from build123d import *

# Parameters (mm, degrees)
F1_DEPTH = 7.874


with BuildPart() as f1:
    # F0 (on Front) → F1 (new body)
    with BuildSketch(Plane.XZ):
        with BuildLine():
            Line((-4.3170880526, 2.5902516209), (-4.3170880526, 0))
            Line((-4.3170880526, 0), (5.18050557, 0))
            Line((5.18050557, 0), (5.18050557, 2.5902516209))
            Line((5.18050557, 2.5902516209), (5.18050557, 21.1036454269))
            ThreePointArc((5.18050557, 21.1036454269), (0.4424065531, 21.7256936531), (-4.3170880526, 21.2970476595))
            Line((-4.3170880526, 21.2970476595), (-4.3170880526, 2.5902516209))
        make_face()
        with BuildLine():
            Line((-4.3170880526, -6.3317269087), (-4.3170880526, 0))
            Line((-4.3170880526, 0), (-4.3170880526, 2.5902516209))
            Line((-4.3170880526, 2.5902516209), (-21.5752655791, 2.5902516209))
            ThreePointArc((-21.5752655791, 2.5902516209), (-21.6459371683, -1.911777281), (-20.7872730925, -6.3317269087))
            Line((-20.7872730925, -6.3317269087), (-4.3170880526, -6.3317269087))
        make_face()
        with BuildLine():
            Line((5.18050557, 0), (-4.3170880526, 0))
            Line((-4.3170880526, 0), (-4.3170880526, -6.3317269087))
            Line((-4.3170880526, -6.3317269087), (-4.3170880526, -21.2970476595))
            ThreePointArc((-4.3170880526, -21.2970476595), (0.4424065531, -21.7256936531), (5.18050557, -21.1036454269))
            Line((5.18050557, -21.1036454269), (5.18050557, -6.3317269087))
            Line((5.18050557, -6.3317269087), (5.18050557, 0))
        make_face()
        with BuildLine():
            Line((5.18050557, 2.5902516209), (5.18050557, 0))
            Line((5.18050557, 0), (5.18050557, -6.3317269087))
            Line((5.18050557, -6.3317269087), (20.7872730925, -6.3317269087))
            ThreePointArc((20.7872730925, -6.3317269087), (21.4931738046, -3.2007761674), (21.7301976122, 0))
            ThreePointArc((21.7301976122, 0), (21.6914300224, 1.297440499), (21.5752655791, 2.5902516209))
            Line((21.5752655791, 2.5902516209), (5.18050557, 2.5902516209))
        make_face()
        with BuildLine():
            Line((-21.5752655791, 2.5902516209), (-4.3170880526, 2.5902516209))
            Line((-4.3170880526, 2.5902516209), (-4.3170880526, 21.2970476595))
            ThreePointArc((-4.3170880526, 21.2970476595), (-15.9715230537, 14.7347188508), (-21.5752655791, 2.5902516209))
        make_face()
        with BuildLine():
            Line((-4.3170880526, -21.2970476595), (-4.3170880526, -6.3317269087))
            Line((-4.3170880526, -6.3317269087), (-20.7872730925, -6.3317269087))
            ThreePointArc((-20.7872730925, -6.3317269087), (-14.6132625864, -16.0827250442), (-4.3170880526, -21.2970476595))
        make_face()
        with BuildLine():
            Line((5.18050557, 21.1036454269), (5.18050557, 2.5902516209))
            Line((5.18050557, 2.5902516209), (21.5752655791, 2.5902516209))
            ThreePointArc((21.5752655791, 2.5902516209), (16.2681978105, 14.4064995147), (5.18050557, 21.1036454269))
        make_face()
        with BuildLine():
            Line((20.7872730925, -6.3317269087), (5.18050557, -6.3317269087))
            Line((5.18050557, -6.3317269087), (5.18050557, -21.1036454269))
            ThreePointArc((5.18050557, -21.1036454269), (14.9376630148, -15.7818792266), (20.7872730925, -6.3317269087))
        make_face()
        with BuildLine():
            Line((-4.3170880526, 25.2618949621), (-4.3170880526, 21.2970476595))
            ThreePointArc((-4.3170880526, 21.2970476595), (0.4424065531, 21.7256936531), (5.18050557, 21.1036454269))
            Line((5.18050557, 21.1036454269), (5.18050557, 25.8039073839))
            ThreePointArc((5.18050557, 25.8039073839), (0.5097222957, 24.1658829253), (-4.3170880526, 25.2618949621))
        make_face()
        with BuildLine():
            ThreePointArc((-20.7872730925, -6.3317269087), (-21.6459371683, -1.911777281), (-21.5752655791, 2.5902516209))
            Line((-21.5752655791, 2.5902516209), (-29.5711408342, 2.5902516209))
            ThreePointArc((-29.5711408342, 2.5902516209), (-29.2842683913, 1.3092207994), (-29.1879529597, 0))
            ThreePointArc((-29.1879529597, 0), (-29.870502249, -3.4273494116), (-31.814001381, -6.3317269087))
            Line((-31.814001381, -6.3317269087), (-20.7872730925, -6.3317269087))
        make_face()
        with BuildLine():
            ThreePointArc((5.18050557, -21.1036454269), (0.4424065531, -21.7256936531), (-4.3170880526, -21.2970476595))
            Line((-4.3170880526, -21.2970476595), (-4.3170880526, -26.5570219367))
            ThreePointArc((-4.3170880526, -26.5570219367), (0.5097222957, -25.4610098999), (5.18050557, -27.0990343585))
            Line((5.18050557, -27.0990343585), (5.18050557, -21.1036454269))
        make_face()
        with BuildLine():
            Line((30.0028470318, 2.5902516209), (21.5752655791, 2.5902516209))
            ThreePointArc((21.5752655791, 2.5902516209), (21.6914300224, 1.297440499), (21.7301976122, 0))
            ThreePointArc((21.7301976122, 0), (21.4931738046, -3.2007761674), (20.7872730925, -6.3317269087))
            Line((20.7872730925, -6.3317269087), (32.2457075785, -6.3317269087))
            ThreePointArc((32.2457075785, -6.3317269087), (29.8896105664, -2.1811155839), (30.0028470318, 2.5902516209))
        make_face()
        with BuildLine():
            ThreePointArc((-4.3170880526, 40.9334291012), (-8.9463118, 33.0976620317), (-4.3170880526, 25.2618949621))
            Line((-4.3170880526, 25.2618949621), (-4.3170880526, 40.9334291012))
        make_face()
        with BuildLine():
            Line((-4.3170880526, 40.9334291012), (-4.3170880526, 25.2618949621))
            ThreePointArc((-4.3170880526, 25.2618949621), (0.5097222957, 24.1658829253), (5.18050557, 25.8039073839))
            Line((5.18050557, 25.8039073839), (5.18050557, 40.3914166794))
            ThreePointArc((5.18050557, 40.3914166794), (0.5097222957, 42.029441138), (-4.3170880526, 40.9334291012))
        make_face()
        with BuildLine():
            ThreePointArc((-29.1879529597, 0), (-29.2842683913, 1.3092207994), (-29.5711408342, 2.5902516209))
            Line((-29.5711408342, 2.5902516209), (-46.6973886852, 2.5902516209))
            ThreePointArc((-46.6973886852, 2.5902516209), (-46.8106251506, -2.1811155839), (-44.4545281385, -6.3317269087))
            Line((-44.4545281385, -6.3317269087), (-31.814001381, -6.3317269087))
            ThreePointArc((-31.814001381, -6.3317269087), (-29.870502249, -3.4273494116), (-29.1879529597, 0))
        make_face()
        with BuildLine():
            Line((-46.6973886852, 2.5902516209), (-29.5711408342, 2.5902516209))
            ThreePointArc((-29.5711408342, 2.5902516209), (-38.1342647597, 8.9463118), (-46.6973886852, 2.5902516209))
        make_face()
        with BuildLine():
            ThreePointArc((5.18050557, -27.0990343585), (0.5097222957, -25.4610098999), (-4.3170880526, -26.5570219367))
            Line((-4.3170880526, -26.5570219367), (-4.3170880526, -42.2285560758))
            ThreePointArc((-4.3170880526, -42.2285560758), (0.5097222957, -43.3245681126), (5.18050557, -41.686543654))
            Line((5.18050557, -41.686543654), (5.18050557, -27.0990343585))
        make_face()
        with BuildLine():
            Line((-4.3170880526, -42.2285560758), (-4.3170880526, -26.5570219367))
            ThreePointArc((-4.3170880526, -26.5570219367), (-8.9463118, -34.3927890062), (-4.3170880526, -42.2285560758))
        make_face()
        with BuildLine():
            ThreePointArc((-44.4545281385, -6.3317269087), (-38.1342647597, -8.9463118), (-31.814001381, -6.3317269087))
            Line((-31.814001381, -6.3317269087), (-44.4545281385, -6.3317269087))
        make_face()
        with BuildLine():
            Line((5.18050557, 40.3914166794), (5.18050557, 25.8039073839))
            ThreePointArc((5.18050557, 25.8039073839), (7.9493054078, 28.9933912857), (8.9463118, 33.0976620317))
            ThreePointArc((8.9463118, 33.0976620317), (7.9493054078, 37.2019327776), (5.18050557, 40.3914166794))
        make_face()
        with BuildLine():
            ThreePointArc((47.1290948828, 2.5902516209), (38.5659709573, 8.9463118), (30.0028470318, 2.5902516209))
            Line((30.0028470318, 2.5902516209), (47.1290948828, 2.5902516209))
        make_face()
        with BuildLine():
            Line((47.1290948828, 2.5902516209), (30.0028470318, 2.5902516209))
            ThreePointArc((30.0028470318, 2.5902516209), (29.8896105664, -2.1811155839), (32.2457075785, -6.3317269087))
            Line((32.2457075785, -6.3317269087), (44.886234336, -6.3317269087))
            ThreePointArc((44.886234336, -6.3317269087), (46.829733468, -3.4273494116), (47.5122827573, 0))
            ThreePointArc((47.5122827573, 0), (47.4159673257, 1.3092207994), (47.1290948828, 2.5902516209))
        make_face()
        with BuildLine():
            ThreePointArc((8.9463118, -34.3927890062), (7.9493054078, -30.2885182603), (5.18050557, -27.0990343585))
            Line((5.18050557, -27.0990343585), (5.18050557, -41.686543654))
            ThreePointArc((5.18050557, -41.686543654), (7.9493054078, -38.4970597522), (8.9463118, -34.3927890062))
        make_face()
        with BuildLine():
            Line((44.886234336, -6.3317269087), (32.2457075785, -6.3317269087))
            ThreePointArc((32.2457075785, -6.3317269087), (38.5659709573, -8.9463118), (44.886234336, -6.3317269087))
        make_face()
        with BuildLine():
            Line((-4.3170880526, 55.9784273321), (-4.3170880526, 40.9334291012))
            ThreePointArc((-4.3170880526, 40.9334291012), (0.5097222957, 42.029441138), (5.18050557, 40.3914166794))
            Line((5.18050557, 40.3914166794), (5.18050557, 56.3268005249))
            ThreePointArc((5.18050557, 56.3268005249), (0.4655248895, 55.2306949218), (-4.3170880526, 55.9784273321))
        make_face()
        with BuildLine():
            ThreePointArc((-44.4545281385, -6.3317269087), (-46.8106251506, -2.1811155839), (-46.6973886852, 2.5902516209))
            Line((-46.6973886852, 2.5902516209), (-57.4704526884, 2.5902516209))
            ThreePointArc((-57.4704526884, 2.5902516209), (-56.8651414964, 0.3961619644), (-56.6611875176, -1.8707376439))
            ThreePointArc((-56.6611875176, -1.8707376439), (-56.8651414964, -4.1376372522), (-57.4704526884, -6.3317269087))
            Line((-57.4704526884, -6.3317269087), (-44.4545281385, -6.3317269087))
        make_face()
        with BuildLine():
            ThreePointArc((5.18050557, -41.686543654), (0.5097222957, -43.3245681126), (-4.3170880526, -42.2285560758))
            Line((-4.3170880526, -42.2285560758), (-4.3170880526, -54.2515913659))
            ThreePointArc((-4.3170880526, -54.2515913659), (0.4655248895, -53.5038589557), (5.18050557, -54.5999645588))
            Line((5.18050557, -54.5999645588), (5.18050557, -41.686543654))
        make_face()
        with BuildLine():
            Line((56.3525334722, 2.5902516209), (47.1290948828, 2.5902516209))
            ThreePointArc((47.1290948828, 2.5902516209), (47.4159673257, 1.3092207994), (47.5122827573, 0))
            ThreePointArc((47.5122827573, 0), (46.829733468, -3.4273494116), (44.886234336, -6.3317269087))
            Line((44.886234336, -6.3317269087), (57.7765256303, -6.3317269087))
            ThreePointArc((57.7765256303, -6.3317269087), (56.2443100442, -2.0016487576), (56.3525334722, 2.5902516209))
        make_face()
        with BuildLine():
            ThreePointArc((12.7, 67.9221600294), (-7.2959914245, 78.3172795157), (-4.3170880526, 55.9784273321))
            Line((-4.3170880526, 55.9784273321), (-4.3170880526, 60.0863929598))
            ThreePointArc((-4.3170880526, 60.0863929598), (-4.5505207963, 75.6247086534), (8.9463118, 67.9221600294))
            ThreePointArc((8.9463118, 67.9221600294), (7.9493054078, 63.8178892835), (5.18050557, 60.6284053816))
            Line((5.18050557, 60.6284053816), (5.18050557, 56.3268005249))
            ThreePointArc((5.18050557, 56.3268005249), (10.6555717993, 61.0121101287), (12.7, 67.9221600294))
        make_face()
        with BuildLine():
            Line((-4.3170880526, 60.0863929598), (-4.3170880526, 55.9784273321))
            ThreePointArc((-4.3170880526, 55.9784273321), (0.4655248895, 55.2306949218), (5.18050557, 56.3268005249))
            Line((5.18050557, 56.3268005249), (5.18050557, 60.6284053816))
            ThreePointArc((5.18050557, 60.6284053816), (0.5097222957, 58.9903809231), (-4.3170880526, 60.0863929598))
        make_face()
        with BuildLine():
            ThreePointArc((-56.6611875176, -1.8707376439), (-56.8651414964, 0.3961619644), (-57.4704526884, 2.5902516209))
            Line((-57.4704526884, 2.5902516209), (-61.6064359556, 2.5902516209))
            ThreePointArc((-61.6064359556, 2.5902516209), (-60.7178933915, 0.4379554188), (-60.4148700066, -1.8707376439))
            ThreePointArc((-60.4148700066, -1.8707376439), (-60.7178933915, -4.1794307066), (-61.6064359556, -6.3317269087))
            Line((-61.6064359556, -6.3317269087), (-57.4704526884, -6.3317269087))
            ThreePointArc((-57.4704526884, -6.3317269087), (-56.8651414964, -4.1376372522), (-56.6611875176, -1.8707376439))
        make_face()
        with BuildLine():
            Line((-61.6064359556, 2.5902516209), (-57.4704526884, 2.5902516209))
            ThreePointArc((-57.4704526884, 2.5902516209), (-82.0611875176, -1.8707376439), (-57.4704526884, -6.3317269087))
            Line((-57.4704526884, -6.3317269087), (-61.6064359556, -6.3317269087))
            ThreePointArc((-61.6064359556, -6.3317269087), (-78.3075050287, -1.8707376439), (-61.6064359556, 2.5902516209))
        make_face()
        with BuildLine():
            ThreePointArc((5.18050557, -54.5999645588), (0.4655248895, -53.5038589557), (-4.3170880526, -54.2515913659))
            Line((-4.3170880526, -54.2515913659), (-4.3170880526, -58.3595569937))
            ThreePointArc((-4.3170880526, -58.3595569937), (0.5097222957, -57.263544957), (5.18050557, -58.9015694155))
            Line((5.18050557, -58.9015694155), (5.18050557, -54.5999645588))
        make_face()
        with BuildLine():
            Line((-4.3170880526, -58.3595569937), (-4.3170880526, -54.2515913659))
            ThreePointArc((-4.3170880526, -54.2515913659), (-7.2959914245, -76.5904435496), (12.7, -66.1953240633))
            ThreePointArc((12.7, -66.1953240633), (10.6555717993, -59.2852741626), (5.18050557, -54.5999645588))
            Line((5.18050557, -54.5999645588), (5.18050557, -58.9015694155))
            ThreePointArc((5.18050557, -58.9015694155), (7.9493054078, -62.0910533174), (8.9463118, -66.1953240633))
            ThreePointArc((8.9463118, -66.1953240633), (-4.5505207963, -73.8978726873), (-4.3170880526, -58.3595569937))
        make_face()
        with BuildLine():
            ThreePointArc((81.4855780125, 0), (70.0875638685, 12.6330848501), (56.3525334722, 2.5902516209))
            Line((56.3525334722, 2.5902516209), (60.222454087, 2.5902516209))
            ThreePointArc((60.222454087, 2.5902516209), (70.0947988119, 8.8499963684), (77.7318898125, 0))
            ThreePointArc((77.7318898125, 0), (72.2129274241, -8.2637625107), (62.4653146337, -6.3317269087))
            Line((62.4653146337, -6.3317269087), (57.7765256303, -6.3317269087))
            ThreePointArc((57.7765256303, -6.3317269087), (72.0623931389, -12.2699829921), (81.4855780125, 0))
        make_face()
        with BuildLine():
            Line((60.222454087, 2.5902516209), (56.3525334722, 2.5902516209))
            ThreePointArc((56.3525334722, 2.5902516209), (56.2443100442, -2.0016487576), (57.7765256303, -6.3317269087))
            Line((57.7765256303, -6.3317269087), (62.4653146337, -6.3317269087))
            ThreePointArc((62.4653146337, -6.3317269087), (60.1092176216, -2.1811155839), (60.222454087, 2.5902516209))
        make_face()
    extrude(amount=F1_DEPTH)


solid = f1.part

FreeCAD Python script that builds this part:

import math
import FreeCAD as App
import Part
import Sketcher

V = App.Vector
Q = App.Units.Quantity

doc = App.newDocument("Part")
body = doc.addObject("PartDesign::Body", "Body")

sketch1 = body.newObject("Sketcher::SketchObject", "Sketch")
sketch1.AttachmentSupport = (doc.getObject("XZ_Plane"), [""])
sketch1.MapMode = "FlatFace"
sketch1.addGeometry([
    Part.ArcOfCircle(Part.Circle(V(0, 0, 0), V(0, 0, 1), 21.7), math.radians(101), math.radians(173)),
    Part.LineSegment(V(-21.6, 2.6, 0), V(-29.6, 2.6, 0)),
    Part.ArcOfCircle(Part.Circle(V(-38.1, 0, 0), V(0, 0, 1), 8.9), math.radians(17), math.radians(163)),
    Part.LineSegment(V(-46.7, 2.6, 0), V(-57.5, 2.6, 0)),
    Part.ArcOfCircle(Part.Circle(V(-69.4, -1.9, 0), V(0, 0, 1), 12.7), math.radians(21), math.radians(339)),
    Part.LineSegment(V(-57.5, -6.3, 0), V(-44.5, -6.3, 0)),
    Part.ArcOfCircle(Part.Circle(V(-38.1, 0, 0), V(0, 0, 1), 8.9), math.radians(-135), math.radians(-45)),
    Part.LineSegment(V(-31.8, -6.3, 0), V(-20.8, -6.3, 0)),
    Part.ArcOfCircle(Part.Circle(V(0, 0, 0), V(0, 0, 1), 21.7), math.radians(-163), math.radians(-101)),
    Part.LineSegment(V(-4.3, -21.3, 0), V(-4.3, -26.6, 0)),
    Part.ArcOfCircle(Part.Circle(V(0, -34.4, 0), V(0, 0, 1), 8.9), math.radians(119), math.radians(241)),
    Part.LineSegment(V(-4.3, -42.2, 0), V(-4.3, -54.3, 0)),
    Part.ArcOfCircle(Part.Circle(V(0, -66.2, 0), V(0, 0, 1), 12.7), math.radians(110), math.radians(360)),
    Part.ArcOfCircle(Part.Circle(V(0, -66.2, 0), V(0, 0, 1), 12.7), math.radians(0), math.radians(66)),
    Part.LineSegment(V(5.2, -54.6, 0), V(5.2, -41.7, 0)),
    Part.ArcOfCircle(Part.Circle(V(0, -34.4, 0), V(0, 0, 1), 8.9), math.radians(-55), math.radians(0)),
    Part.ArcOfCircle(Part.Circle(V(0, -34.4, 0), V(0, 0, 1), 8.9), math.radians(0), math.radians(55)),
    Part.LineSegment(V(5.2, -27.1, 0), V(5.2, -21.1, 0)),
    Part.ArcOfCircle(Part.Circle(V(0, 0, 0), V(0, 0, 1), 21.7), math.radians(-76), math.radians(-17)),
    Part.LineSegment(V(20.8, -6.3, 0), V(32.2, -6.3, 0)),
    Part.ArcOfCircle(Part.Circle(V(38.6, 0, 0), V(0, 0, 1), 8.9), math.radians(-135), math.radians(-45)),
    Part.LineSegment(V(44.9, -6.3, 0), V(57.8, -6.3, 0)),
    Part.ArcOfCircle(Part.Circle(V(68.8, 0, 0), V(0, 0, 1), 12.7), math.radians(-150), math.radians(0)),
    Part.ArcOfCircle(Part.Circle(V(68.8, 0, 0), V(0, 0, 1), 12.7), math.radians(0), math.radians(168)),
    Part.LineSegment(V(56.4, 2.6, 0), V(47.1, 2.6, 0)),
    Part.ArcOfCircle(Part.Circle(V(38.6, 0, 0), V(0, 0, 1), 8.9), math.radians(17), math.radians(163)),
    Part.LineSegment(V(30, 2.6, 0), V(21.6, 2.6, 0)),
    Part.ArcOfCircle(Part.Circle(V(0, 0, 0), V(0, 0, 1), 21.7), math.radians(7), math.radians(76)),
    Part.LineSegment(V(5.2, 21.1, 0), V(5.2, 25.8, 0)),
    Part.ArcOfCircle(Part.Circle(V(0, 33.1, 0), V(0, 0, 1), 8.9), math.radians(-55), math.radians(0)),
    Part.ArcOfCircle(Part.Circle(V(0, 33.1, 0), V(0, 0, 1), 8.9), math.radians(0), math.radians(55)),
    Part.LineSegment(V(5.2, 40.4, 0), V(5.2, 56.3, 0)),
    Part.ArcOfCircle(Part.Circle(V(0, 67.9, 0), V(0, 0, 1), 12.7), math.radians(-66), math.radians(0)),
    Part.ArcOfCircle(Part.Circle(V(0, 67.9, 0), V(0, 0, 1), 12.7), math.radians(0), math.radians(250)),
    Part.LineSegment(V(-4.3, 56, 0), V(-4.3, 40.9, 0)),
    Part.ArcOfCircle(Part.Circle(V(0, 33.1, 0), V(0, 0, 1), 8.9), math.radians(119), math.radians(241)),
    Part.LineSegment(V(-4.3, 25.3, 0), V(-4.3, 21.3, 0)),
    Part.ArcOfCircle(Part.Circle(V(0, -66.2, 0), V(0, 0, 1), 8.9), math.radians(55), math.radians(119)),
    Part.ArcOfCircle(Part.Circle(V(0, -66.2, 0), V(0, 0, 1), 8.9), math.radians(0), math.radians(55)),
    Part.ArcOfCircle(Part.Circle(V(0, -66.2, 0), V(0, 0, 1), 8.9), math.radians(119), math.radians(360)),
    Part.ArcOfCircle(Part.Circle(V(-69.4, -1.9, 0), V(0, 0, 1), 8.9), math.radians(0), math.radians(30)),
    Part.ArcOfCircle(Part.Circle(V(-69.4, -1.9, 0), V(0, 0, 1), 8.9), math.radians(-30), math.radians(0)),
    Part.ArcOfCircle(Part.Circle(V(-69.4, -1.9, 0), V(0, 0, 1), 8.9), math.radians(30), math.radians(330)),
    Part.ArcOfCircle(Part.Circle(V(0, 67.9, 0), V(0, 0, 1), 8.9), math.radians(-119), math.radians(-55)),
    Part.ArcOfCircle(Part.Circle(V(0, 67.9, 0), V(0, 0, 1), 8.9), math.radians(0), math.radians(241)),
    Part.ArcOfCircle(Part.Circle(V(0, 67.9, 0), V(0, 0, 1), 8.9), math.radians(-55), math.radians(0)),
    Part.ArcOfCircle(Part.Circle(V(68.8, 0, 0), V(0, 0, 1), 8.9), math.radians(163), math.radians(225)),
    Part.ArcOfCircle(Part.Circle(V(68.8, 0, 0), V(0, 0, 1), 8.9), math.radians(0), math.radians(163)),
    Part.ArcOfCircle(Part.Circle(V(68.8, 0, 0), V(0, 0, 1), 8.9), math.radians(-135), math.radians(0)),
], False)
sketch1.addConstraint([
    Sketcher.Constraint("Coincident", 0, 2, 1, 1),
    Sketcher.Constraint("Coincident", 1, 2, 2, 1),
    Sketcher.Constraint("Coincident", 2, 2, 3, 1),
    Sketcher.Constraint("Coincident", 3, 2, 4, 1),
    Sketcher.Constraint("Coincident", 4, 2, 5, 1),
    Sketcher.Constraint("Coincident", 5, 2, 6, 1),
    Sketcher.Constraint("Coincident", 6, 2, 7, 1),
    Sketcher.Constraint("Coincident", 7, 2, 8, 1),
    Sketcher.Constraint("Coincident", 8, 2, 9, 1),
    Sketcher.Constraint("Coincident", 9, 2, 10, 1),
    Sketcher.Constraint("Coincident", 10, 2, 11, 1),
    Sketcher.Constraint("Coincident", 11, 2, 12, 1),
    Sketcher.Constraint("Tangent", 12, 2, 13, 1),
    Sketcher.Constraint("Coincident", 13, 2, 14, 1),
    Sketcher.Constraint("Coincident", 14, 2, 15, 1),
    Sketcher.Constraint("Tangent", 15, 2, 16, 1),
    Sketcher.Constraint("Coincident", 16, 2, 17, 1),
    Sketcher.Constraint("Coincident", 17, 2, 18, 1),
    Sketcher.Constraint("Coincident", 18, 2, 19, 1),
    Sketcher.Constraint("Coincident", 19, 2, 20, 1),
    Sketcher.Constraint("Coincident", 20, 2, 21, 1),
    Sketcher.Constraint("Coincident", 21, 2, 22, 1),
    Sketcher.Constraint("Tangent", 22, 2, 23, 1),
    Sketcher.Constraint("Coincident", 23, 2, 24, 1),
    Sketcher.Constraint("Coincident", 24, 2, 25, 1),
    Sketcher.Constraint("Coincident", 25, 2, 26, 1),
    Sketcher.Constraint("Coincident", 26, 2, 27, 1),
    Sketcher.Constraint("Coincident", 27, 2, 28, 1),
    Sketcher.Constraint("Coincident", 28, 2, 29, 1),
    Sketcher.Constraint("Tangent", 29, 2, 30, 1),
    Sketcher.Constraint("Coincident", 30, 2, 31, 1),
    Sketcher.Constraint("Coincident", 31, 2, 32, 1),
    Sketcher.Constraint("Tangent", 32, 2, 33, 1),
    Sketcher.Constraint("Coincident", 33, 2, 34, 1),
    Sketcher.Constraint("Coincident", 34, 2, 35, 1),
    Sketcher.Constraint("Coincident", 35, 2, 36, 1),
    Sketcher.Constraint("Coincident", 36, 2, 0, 1),
    Sketcher.Constraint("Tangent", 37, 1, 38, 2),
    Sketcher.Constraint("Tangent", 38, 1, 39, 2),
    Sketcher.Constraint("Tangent", 39, 1, 37, 2),
    Sketcher.Constraint("Tangent", 40, 1, 41, 2),
    Sketcher.Constraint("Tangent", 41, 1, 42, 2),
    Sketcher.Constraint("Tangent", 42, 1, 40, 2),
    Sketcher.Constraint("Tangent", 43, 1, 44, 2),
    Sketcher.Constraint("Tangent", 44, 1, 45, 2),
    Sketcher.Constraint("Tangent", 45, 1, 43, 2),
    Sketcher.Constraint("Tangent", 46, 1, 47, 2),
    Sketcher.Constraint("Tangent", 47, 1, 48, 2),
    Sketcher.Constraint("Tangent", 48, 1, 46, 2),
    Sketcher.Constraint("Horizontal", 1),
    Sketcher.Constraint("Horizontal", 3),
    Sketcher.Constraint("Horizontal", 5),
    Sketcher.Constraint("Horizontal", 7),
    Sketcher.Constraint("Vertical", 9),
    Sketcher.Constraint("Vertical", 11),
    Sketcher.Constraint("Vertical", 14),
    Sketcher.Constraint("Vertical", 17),
    Sketcher.Constraint("Horizontal", 19),
    Sketcher.Constraint("Horizontal", 21),
    Sketcher.Constraint("Horizontal", 24),
    Sketcher.Constraint("Horizontal", 26),
    Sketcher.Constraint("Vertical", 28),
    Sketcher.Constraint("Vertical", 31),
    Sketcher.Constraint("Vertical", 34),
    Sketcher.Constraint("Vertical", 36),
    Sketcher.Constraint("Coincident", 0, 3, -1, 1),
    Sketcher.Constraint("Coincident", 8, 3, -1, 1),
    Sketcher.Constraint("Coincident", 18, 3, -1, 1),
    Sketcher.Constraint("Coincident", 27, 3, -1, 1),
    Sketcher.Constraint("Coincident", 6, 3, 2, 3),
    Sketcher.Constraint("Coincident", 15, 3, 10, 3),
    Sketcher.Constraint("Coincident", 25, 3, 20, 3),
    Sketcher.Constraint("Coincident", 35, 3, 29, 3),
    Sketcher.Constraint("Coincident", 37, 3, 12, 3),
    Sketcher.Constraint("Coincident", 40, 3, 4, 3),
    Sketcher.Constraint("Coincident", 43, 3, 32, 3),
    Sketcher.Constraint("Coincident", 46, 3, 22, 3),
    Sketcher.Constraint("Equal", 2, 6),
    Sketcher.Constraint("Equal", 0, 8),
    Sketcher.Constraint("Equal", 6, 10),
    Sketcher.Constraint("Equal", 4, 12),
    Sketcher.Constraint("Equal", 12, 13),
    Sketcher.Constraint("Equal", 10, 15),
    Sketcher.Constraint("Equal", 15, 16),
    Sketcher.Constraint("Equal", 8, 18),
    Sketcher.Constraint("Equal", 16, 20),
    Sketcher.Constraint("Equal", 13, 22),
    Sketcher.Constraint("Equal", 22, 23),
    Sketcher.Constraint("Equal", 20, 25),
    Sketcher.Constraint("Equal", 18, 27),
    Sketcher.Constraint("Equal", 25, 29),
    Sketcher.Constraint("Equal", 29, 30),
    Sketcher.Constraint("Equal", 23, 32),
    Sketcher.Constraint("Equal", 32, 33),
    Sketcher.Constraint("Equal", 30, 35),
    Sketcher.Constraint("Equal", 35, 37),
    Sketcher.Constraint("Equal", 39, 43),
    Sketcher.Constraint("Equal", 45, 46),
    Sketcher.Constraint("PointOnObject", 2, 3, -1),
    Sketcher.Constraint("PointOnObject", 10, 3, -2),
    Sketcher.Constraint("PointOnObject", 12, 3, -2),
    Sketcher.Constraint("PointOnObject", 20, 3, -1),
    Sketcher.Constraint("PointOnObject", 22, 3, -1),
    Sketcher.Constraint("PointOnObject", 29, 3, -2),
    Sketcher.Constraint("PointOnObject", 32, 3, -2),
    Sketcher.Constraint("PointOnObject", 22, 2, -1),
    Sketcher.Constraint("PointOnObject", 47, 1, -1),
    Sketcher.Constraint("Horizontal", 1, 2, 2, 2),
    Sketcher.Constraint("Horizontal", 5, 2, 6, 2),
    Sketcher.Constraint("Horizontal", 39, 3, 12, 2),
    Sketcher.Constraint("Horizontal", 16, 3, 15, 2),
    Sketcher.Constraint("Horizontal", 7, 2, 18, 2),
    Sketcher.Constraint("Horizontal", 19, 2, 20, 2),
    Sketcher.Constraint("Horizontal", 3, 2, 23, 2),
    Sketcher.Constraint("Horizontal", 24, 2, 25, 2),
    Sketcher.Constraint("Horizontal", 35, 3, 29, 2),
    Sketcher.Constraint("Horizontal", 45, 3, 32, 2),
    Sketcher.Constraint("Horizontal", 12, 2, 38, 1),
    Sketcher.Constraint("Horizontal", 42, 3, 40, 1),
    Sketcher.Constraint("Horizontal", 21, 2, 41, 1),
    Sketcher.Constraint("Horizontal", 26, 2, 42, 1),
    Sketcher.Constraint("Horizontal", 32, 2, 44, 1),
    Sketcher.Constraint("Horizontal", 42, 1, 46, 1),
    Sketcher.Constraint("Horizontal", 41, 1, 48, 1),
    Sketcher.Constraint("Vertical", 3, 2, 4, 2),
    Sketcher.Constraint("Vertical", 9, 2, 10, 2),
    Sketcher.Constraint("Vertical", 14, 2, 16, 2),
    Sketcher.Constraint("Vertical", 17, 2, 27, 2),
    Sketcher.Constraint("Vertical", 28, 2, 30, 2),
    Sketcher.Constraint("Vertical", 11, 2, 33, 2),
    Sketcher.Constraint("Vertical", 34, 2, 35, 2),
    Sketcher.Constraint("Vertical", 31, 2, 37, 1),
    Sketcher.Constraint("Vertical", 36, 2, 39, 1),
    Sketcher.Constraint("Vertical", 39, 1, 43, 1),
    Sketcher.Constraint("Vertical", 37, 1, 45, 1),
    Sketcher.Constraint("Radius", 4, Q("0.5 in")),
    Sketcher.Constraint("Radius", 2, 8.946312),
    Sketcher.Constraint("DistanceY", 34, 2, 34, 1, 15.044998),
    Sketcher.Constraint("Radius", 0, 21.730198),
    Sketcher.Constraint("Radius", 40, 8.946318),
    Sketcher.Constraint("DistanceX", 7, 1, 7, 2, 11.026728),
    Sketcher.Constraint("DistanceX", 21, 1, 21, 2, 12.890291),
    Sketcher.Constraint("DistanceX", 24, 2, 24, 1, 9.223439),
    Sketcher.Constraint("DistanceX", 26, 2, 26, 1, 8.427581),
    Sketcher.Constraint("DistanceY", 14, 1, 14, 2, 12.913421),
    Sketcher.Constraint("DistanceY", 17, 1, 17, 2, 5.995389),
    Sketcher.Constraint("DistanceY", 28, 1, 28, 2, 4.700262),
    Sketcher.Constraint("DistanceX", 6, 2, -1, 1, 31.814001),
    Sketcher.Constraint("DistanceY", -1, 1, 31, 2, 56.326801),
    Sketcher.Constraint("DistanceX", 3, 2, 3, 1, 10.773064),
    Sketcher.Constraint("DistanceY", 9, 2, 9, 1, 5.259974),
])
pad1 = body.newObject("PartDesign::Pad", "Pad")
pad1.Profile = sketch1
pad1.Length = Q("0.31 in")

doc.recompute()
